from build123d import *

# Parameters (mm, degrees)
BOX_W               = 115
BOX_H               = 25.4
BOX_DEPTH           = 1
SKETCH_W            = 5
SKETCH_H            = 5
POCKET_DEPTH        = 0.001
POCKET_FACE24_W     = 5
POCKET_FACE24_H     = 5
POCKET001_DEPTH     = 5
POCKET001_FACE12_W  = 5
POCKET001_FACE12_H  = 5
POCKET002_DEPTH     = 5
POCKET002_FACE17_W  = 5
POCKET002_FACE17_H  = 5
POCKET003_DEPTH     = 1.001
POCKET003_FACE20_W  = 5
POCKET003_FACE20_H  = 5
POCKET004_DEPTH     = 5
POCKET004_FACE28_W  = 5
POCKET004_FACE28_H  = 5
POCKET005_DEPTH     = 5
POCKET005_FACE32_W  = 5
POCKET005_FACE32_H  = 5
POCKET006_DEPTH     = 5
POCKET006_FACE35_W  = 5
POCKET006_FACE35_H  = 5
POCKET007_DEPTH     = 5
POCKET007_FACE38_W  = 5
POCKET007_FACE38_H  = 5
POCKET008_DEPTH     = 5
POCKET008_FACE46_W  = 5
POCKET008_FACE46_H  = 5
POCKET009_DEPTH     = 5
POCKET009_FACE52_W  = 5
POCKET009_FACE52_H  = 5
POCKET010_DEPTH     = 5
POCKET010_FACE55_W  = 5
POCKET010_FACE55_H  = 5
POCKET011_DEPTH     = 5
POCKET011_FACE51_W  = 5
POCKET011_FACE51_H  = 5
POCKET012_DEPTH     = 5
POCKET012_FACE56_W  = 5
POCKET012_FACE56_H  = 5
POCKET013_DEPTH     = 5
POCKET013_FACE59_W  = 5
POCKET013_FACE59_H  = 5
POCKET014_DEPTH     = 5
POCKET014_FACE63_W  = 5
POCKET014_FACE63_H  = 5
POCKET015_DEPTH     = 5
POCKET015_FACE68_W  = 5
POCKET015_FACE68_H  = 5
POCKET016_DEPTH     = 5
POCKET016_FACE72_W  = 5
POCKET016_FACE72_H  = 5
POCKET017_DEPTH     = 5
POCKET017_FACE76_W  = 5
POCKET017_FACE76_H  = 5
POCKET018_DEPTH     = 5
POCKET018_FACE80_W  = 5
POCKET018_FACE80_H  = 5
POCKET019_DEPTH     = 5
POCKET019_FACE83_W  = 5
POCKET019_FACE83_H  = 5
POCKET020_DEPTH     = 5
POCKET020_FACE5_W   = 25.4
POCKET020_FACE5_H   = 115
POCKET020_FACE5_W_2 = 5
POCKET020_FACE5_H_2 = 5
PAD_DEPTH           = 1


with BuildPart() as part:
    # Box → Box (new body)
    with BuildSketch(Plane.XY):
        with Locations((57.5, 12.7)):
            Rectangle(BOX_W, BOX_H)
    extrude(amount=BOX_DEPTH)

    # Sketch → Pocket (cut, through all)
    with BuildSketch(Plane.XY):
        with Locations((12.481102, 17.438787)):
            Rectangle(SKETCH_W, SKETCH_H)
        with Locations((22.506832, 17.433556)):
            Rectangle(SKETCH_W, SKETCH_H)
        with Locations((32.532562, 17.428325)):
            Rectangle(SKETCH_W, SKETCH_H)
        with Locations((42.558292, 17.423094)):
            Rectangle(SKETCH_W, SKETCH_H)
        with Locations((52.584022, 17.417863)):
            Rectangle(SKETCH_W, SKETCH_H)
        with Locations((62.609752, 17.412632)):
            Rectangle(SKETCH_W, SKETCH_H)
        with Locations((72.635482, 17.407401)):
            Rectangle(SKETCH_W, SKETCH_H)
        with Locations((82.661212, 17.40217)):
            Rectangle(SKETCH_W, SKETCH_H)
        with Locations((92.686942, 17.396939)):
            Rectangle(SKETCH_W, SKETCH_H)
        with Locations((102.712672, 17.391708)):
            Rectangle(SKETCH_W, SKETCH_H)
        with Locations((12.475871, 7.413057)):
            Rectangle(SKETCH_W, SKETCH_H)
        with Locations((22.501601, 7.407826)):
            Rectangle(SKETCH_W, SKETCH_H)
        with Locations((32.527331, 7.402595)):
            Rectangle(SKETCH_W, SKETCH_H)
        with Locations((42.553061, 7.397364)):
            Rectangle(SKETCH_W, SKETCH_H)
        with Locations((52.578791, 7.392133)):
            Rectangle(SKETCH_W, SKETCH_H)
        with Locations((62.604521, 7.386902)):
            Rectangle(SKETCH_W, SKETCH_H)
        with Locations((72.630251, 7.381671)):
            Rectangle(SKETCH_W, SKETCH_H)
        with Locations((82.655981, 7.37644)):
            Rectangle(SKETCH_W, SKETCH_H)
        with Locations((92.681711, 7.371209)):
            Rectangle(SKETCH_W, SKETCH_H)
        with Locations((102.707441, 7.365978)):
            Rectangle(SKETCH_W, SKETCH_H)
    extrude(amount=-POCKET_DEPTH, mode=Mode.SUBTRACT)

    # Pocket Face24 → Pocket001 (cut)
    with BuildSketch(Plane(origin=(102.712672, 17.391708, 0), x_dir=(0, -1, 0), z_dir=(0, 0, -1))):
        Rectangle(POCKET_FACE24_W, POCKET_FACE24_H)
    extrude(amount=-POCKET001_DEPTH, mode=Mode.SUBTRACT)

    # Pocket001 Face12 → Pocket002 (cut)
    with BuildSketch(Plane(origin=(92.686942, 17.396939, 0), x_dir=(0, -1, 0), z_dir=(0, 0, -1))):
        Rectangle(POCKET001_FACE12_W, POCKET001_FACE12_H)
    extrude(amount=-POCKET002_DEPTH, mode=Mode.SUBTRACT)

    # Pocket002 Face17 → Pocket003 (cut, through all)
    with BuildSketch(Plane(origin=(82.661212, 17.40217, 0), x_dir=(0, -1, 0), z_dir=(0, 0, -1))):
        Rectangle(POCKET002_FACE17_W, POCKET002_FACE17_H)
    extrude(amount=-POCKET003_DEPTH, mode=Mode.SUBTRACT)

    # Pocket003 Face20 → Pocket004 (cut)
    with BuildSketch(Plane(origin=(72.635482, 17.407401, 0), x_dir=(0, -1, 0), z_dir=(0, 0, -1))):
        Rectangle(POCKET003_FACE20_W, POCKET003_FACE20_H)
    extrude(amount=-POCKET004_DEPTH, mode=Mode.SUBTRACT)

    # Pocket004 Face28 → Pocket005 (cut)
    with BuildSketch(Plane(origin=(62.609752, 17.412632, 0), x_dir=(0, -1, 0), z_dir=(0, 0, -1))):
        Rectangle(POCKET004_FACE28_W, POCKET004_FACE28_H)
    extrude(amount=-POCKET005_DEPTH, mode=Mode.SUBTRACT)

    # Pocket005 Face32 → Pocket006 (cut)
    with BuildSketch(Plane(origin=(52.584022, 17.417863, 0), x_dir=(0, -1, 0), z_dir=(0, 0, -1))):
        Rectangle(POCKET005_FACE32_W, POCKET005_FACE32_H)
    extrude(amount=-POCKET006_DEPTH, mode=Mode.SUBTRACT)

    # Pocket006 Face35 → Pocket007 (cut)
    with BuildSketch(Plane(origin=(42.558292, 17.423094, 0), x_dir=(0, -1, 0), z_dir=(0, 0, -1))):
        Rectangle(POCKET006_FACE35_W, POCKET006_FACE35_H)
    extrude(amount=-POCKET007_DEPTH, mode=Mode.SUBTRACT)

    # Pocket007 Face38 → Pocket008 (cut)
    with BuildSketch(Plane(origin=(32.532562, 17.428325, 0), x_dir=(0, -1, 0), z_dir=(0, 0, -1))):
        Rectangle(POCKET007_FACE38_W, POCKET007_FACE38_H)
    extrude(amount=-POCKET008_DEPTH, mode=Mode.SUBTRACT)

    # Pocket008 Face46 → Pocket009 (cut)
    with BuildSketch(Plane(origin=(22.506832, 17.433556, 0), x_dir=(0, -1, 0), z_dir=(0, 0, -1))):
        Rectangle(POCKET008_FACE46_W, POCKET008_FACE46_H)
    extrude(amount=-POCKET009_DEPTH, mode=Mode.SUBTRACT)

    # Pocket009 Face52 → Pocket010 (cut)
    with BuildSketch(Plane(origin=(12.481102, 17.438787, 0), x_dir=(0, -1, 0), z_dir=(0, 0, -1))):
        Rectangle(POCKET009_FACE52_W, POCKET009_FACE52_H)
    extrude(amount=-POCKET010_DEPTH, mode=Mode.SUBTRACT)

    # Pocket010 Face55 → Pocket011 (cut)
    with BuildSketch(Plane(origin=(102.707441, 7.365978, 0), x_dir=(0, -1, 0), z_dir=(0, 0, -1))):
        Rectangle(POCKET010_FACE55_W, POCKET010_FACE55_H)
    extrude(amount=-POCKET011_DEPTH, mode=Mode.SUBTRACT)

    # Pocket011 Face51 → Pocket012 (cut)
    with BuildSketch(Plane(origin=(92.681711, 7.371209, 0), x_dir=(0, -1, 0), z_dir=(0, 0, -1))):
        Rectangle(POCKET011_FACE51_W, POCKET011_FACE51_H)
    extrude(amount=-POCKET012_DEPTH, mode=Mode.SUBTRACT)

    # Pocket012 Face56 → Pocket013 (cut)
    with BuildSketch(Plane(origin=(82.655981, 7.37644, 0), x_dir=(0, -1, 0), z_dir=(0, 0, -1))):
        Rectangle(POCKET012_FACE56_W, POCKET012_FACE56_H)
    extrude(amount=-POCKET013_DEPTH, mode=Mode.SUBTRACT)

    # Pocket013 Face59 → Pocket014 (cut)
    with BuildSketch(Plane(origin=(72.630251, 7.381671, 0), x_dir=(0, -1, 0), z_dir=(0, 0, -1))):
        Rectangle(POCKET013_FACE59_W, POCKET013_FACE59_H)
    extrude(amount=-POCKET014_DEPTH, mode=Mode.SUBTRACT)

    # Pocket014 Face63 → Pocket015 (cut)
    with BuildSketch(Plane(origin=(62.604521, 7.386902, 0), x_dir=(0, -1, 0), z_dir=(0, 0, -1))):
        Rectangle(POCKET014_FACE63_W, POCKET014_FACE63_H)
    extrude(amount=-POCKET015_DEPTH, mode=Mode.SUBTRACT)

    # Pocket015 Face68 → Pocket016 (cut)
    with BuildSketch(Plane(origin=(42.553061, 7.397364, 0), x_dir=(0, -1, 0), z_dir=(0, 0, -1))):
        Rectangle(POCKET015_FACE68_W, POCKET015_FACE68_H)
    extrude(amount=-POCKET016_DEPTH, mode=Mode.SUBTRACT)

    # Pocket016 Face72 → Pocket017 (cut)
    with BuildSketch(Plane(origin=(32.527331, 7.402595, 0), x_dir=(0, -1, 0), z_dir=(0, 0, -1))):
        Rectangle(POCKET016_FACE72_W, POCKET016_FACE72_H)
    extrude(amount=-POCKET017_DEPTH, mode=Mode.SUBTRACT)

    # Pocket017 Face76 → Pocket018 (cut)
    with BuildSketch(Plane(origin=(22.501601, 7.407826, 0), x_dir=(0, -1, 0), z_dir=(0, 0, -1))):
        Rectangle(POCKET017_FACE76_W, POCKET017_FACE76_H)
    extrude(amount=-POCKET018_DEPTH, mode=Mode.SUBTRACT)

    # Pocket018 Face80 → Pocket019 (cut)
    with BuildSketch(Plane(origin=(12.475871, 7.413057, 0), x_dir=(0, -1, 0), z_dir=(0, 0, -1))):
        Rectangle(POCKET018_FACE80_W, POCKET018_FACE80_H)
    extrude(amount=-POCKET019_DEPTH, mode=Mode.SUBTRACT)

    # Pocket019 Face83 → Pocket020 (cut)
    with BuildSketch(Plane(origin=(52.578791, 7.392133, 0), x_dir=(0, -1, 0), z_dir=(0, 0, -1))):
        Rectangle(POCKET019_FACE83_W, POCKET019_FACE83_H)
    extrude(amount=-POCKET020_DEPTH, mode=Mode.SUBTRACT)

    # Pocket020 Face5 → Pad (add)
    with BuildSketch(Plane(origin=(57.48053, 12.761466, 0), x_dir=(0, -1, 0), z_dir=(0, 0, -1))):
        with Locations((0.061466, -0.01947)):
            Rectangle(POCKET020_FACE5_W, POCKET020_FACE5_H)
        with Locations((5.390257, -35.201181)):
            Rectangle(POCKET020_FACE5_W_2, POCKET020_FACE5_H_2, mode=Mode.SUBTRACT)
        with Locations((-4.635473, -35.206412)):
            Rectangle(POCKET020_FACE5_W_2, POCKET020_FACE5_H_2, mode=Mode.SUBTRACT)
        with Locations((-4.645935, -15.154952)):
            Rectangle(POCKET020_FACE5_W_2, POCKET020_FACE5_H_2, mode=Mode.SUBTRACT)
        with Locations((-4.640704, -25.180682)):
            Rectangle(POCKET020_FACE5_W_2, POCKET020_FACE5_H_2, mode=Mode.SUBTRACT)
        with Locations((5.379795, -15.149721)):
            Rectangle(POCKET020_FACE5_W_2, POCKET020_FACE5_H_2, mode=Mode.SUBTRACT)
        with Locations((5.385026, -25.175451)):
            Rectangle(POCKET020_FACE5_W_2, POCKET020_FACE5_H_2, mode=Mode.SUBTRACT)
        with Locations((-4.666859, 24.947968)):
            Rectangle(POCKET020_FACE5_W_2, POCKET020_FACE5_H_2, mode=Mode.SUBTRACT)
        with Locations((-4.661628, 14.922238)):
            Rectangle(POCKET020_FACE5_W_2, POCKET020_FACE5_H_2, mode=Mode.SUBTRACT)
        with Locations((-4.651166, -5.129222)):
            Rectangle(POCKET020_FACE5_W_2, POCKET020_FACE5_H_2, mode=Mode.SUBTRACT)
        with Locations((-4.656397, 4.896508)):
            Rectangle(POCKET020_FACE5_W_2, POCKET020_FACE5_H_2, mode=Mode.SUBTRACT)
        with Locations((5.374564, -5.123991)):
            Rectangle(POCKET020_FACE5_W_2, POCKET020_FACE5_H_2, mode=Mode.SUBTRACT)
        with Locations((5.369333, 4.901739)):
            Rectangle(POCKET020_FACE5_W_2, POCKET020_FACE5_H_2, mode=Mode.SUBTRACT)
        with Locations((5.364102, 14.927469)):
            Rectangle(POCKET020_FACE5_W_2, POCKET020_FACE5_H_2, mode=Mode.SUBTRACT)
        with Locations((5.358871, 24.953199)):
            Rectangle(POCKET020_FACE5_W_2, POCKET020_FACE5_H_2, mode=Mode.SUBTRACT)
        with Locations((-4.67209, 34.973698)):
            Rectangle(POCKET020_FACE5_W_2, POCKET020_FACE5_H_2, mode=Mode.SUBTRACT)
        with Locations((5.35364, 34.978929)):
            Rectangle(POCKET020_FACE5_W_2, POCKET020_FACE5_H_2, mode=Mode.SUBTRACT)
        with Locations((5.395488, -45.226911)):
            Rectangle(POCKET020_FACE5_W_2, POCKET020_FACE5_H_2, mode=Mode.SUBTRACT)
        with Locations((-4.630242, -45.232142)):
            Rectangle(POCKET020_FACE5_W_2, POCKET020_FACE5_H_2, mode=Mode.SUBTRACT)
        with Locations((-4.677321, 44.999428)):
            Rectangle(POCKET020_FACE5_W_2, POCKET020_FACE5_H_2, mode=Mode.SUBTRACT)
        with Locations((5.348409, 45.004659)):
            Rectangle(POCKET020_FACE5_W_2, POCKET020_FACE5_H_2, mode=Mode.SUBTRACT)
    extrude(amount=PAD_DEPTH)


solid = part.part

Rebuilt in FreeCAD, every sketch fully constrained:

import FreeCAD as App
import Part
import Sketcher


def add_polygon(sketch, points):
    """Adds a closed chain of lines whose ends are joined by coincident constraints."""
    first, n = sketch.GeometryCount, len(points)
    for a, b in zip(points, points[1:] + points[:1]):
        sketch.addGeometry(Part.LineSegment(App.Vector(*a, 0), App.Vector(*b, 0)), False)
    for i in range(n):
        sketch.addConstraint(Sketcher.Constraint("Coincident", first + i, 2, first + (i + 1) % n, 1))

doc = App.newDocument("Part")
params = doc.addObject("Spreadsheet::Sheet", "Params")
for row, (alias, value) in enumerate([
    ("sketch1_width", "115 mm"),
    ("sketch1_height", "25.4 mm"),
    ("pad1_length", "1 mm"),
    ("sketch2_width", "5 mm"),
    ("sketch3_width", "5 mm"),
    ("pocket2_length", "5 mm"),
    ("sketch4_width", "5 mm"),
    ("pocket3_length", "5 mm"),
    ("sketch5_width", "5 mm"),
    ("sketch6_width", "5 mm"),
    ("pocket5_length", "5 mm"),
    ("sketch7_width", "5 mm"),
    ("pocket6_length", "5 mm"),
    ("sketch8_width", "5 mm"),
    ("pocket7_length", "5 mm"),
    ("sketch9_width", "5 mm"),
    ("pocket8_length", "5 mm"),
    ("sketch10_width", "5 mm"),
    ("pocket9_length", "5 mm"),
    ("sketch11_width", "5 mm"),
    ("pocket10_length", "5 mm"),
    ("sketch12_width", "5 mm"),
    ("pocket11_length", "5 mm"),
    ("sketch13_width", "5 mm"),
    ("pocket12_length", "5 mm"),
    ("sketch14_width", "5 mm"),
    ("pocket13_length", "5 mm"),
    ("sketch15_width", "5 mm"),
    ("pocket14_length", "5 mm"),
    ("sketch16_width", "5 mm"),
    ("pocket15_length", "5 mm"),
    ("sketch17_width", "5 mm"),
    ("pocket16_length", "5 mm"),
    ("sketch18_width", "5 mm"),
    ("pocket17_length", "5 mm"),
    ("sketch19_width", "5 mm"),
    ("pocket18_length", "5 mm"),
    ("sketch20_width", "5 mm"),
    ("pocket19_length", "5 mm"),
    ("sketch21_width", "5 mm"),
    ("pocket20_length", "5 mm"),
    ("sketch22_width", "5 mm"),
    ("pocket21_length", "5 mm"),
    ("sketch23_width", "115 mm"),
    ("sketch23_width2", "5 mm"),
    ("sketch23_height", "25.4 mm"),
    ("pad2_length", "1 mm"),
], start=1):
    params.set(f"A{row}", alias)
    params.set(f"B{row}", "=" + value)
    params.setAlias(f"B{row}", alias)

body = doc.addObject("PartDesign::Body", "Body")

sketch1 = body.newObject("Sketcher::SketchObject", "Sketch")
sketch1.AttachmentSupport = (doc.getObject("XY_Plane"), [""])
sketch1.MapMode = "FlatFace"
add_polygon(sketch1, [(0, 25), (0, 0), (115, 0), (115, 25)])
sketch1.addConstraint([
    Sketcher.Constraint("Vertical", 0),
    Sketcher.Constraint("Horizontal", 1),
    Sketcher.Constraint("Vertical", 2),
    Sketcher.Constraint("Horizontal", 3),
    Sketcher.Constraint("Coincident", 0, 2, -1, 1),
    Sketcher.Constraint("DistanceX", 1, 1, 1, 2, 115.0),
    Sketcher.Constraint("DistanceY", 0, 2, 0, 1, 25.4),
])
sketch1.setExpression("Constraints[9]", "Params.sketch1_width")
sketch1.setExpression("Constraints[10]", "Params.sketch1_height")
pad1 = body.newObject("PartDesign::Pad", "Pad")
pad1.Profile = sketch1
pad1.setExpression("Length", "Params.pad1_length")

sketch2 = body.newObject("Sketcher::SketchObject", "Sketch001")
sketch2.AttachmentSupport = (doc.getObject("XY_Plane"), [""])
sketch2.MapMode = "FlatFace"
add_polygon(sketch2, [(10, 19.9), (10, 14.9), (15, 14.9), (15, 19.9)])
add_polygon(sketch2, [(20, 19.9), (20, 14.9), (25, 14.9), (25, 19.9)])
add_polygon(sketch2, [(30, 19.9), (30, 14.9), (35, 14.9), (35, 19.9)])
add_polygon(sketch2, [(40.1, 19.9), (40.1, 14.9), (45.1, 14.9), (45.1, 19.9)])
add_polygon(sketch2, [(50.1, 19.9), (50.1, 14.9), (55.1, 14.9), (55.1, 19.9)])
add_polygon(sketch2, [(60.1, 19.9), (60.1, 14.9), (65.1, 14.9), (65.1, 19.9)])
add_polygon(sketch2, [(70.1, 19.9), (70.1, 14.9), (75.1, 14.9), (75.1, 19.9)])
add_polygon(sketch2, [(80.2, 19.9), (80.2, 14.9), (85.2, 14.9), (85.2, 19.9)])
add_polygon(sketch2, [(90.2, 19.9), (90.2, 14.9), (95.2, 14.9), (95.2, 19.9)])
add_polygon(sketch2, [(100.2, 19.9), (100.2, 14.9), (105.2, 14.9), (105.2, 19.9)])
add_polygon(sketch2, [(10, 9.9), (10, 4.9), (15, 4.9), (15, 9.9)])
add_polygon(sketch2, [(20, 9.9), (20, 4.9), (25, 4.9), (25, 9.9)])
add_polygon(sketch2, [(30, 9.9), (30, 4.9), (35, 4.9), (35, 9.9)])
add_polygon(sketch2, [(40.1, 9.9), (40.1, 4.9), (45.1, 4.9), (45.1, 9.9)])
add_polygon(sketch2, [(50.1, 9.9), (50.1, 4.9), (55.1, 4.9), (55.1, 9.9)])
add_polygon(sketch2, [(60.1, 9.9), (60.1, 4.9), (65.1, 4.9), (65.1, 9.9)])
add_polygon(sketch2, [(70.1, 9.9), (70.1, 4.9), (75.1, 4.9), (75.1, 9.9)])
add_polygon(sketch2, [(80.2, 9.9), (80.2, 4.9), (85.2, 4.9), (85.2, 9.9)])
add_polygon(sketch2, [(90.2, 9.9), (90.2, 4.9), (95.2, 4.9), (95.2, 9.9)])
add_polygon(sketch2, [(100.2, 9.9), (100.2, 4.9), (105.2, 4.9), (105.2, 9.9)])
sketch2.addConstraint([
    Sketcher.Constraint("Vertical", 0),
    Sketcher.Constraint("Horizontal", 1),
    Sketcher.Constraint("Vertical", 2),
    Sketcher.Constraint("Horizontal", 3),
    Sketcher.Constraint("Vertical", 4),
    Sketcher.Constraint("Horizontal", 5),
    Sketcher.Constraint("Vertical", 6),
    Sketcher.Constraint("Horizontal", 7),
    Sketcher.Constraint("Vertical", 8),
    Sketcher.Constraint("Horizontal", 9),
    Sketcher.Constraint("Vertical", 10),
    Sketcher.Constraint("Horizontal", 11),
    Sketcher.Constraint("Vertical", 12),
    Sketcher.Constraint("Horizontal", 13),
    Sketcher.Constraint("Vertical", 14),
    Sketcher.Constraint("Horizontal", 15),
    Sketcher.Constraint("Vertical", 16),
    Sketcher.Constraint("Horizontal", 17),
    Sketcher.Constraint("Vertical", 18),
    Sketcher.Constraint("Horizontal", 19),
    Sketcher.Constraint("Vertical", 20),
    Sketcher.Constraint("Horizontal", 21),
    Sketcher.Constraint("Vertical", 22),
    Sketcher.Constraint("Horizontal", 23),
    Sketcher.Constraint("Vertical", 24),
    Sketcher.Constraint("Horizontal", 25),
    Sketcher.Constraint("Vertical", 26),
    Sketcher.Constraint("Horizontal", 27),
    Sketcher.Constraint("Vertical", 28),
    Sketcher.Constraint("Horizontal", 29),
    Sketcher.Constraint("Vertical", 30),
    Sketcher.Constraint("Horizontal", 31),
    Sketcher.Constraint("Vertical", 32),
    Sketcher.Constraint("Horizontal", 33),
    Sketcher.Constraint("Vertical", 34),
    Sketcher.Constraint("Horizontal", 35),
    Sketcher.Constraint("Vertical", 36),
    Sketcher.Constraint("Horizontal", 37),
    Sketcher.Constraint("Vertical", 38),
    Sketcher.Constraint("Horizontal", 39),
    Sketcher.Constraint("Vertical", 40),
    Sketcher.Constraint("Horizontal", 41),
    Sketcher.Constraint("Vertical", 42),
    Sketcher.Constraint("Horizontal", 43),
    Sketcher.Constraint("Vertical", 44),
    Sketcher.Constraint("Horizontal", 45),
    Sketcher.Constraint("Vertical", 46),
    Sketcher.Constraint("Horizontal", 47),
    Sketcher.Constraint("Vertical", 48),
    Sketcher.Constraint("Horizontal", 49),
    Sketcher.Constraint("Vertical", 50),
    Sketcher.Constraint("Horizontal", 51),
    Sketcher.Constraint("Vertical", 52),
    Sketcher.Constraint("Horizontal", 53),
    Sketcher.Constraint("Vertical", 54),
    Sketcher.Constraint("Horizontal", 55),
    Sketcher.Constraint("Vertical", 56),
    Sketcher.Constraint("Horizontal", 57),
    Sketcher.Constraint("Vertical", 58),
    Sketcher.Constraint("Horizontal", 59),
    Sketcher.Constraint("Vertical", 60),
    Sketcher.Constraint("Horizontal", 61),
    Sketcher.Constraint("Vertical", 62),
    Sketcher.Constraint("Horizontal", 63),
    Sketcher.Constraint("Vertical", 64),
    Sketcher.Constraint("Horizontal", 65),
    Sketcher.Constraint("Vertical", 66),
    Sketcher.Constraint("Horizontal", 67),
    Sketcher.Constraint("Vertical", 68),
    Sketcher.Constraint("Horizontal", 69),
    Sketcher.Constraint("Vertical", 70),
    Sketcher.Constraint("Horizontal", 71),
    Sketcher.Constraint("Vertical", 72),
    Sketcher.Constraint("Horizontal", 73),
    Sketcher.Constraint("Vertical", 74),
    Sketcher.Constraint("Horizontal", 75),
    Sketcher.Constraint("Vertical", 76),
    Sketcher.Constraint("Horizontal", 77),
    Sketcher.Constraint("Vertical", 78),
    Sketcher.Constraint("Horizontal", 79),
    Sketcher.Constraint("Equal", 3, 5),
    Sketcher.Constraint("Equal", 7, 9),
    Sketcher.Constraint("Equal", 11, 13),
    Sketcher.Constraint("Equal", 15, 17),
    Sketcher.Constraint("Equal", 19, 21),
    Sketcher.Constraint("Equal", 23, 25),
    Sketcher.Constraint("Equal", 27, 29),
    Sketcher.Constraint("Equal", 31, 33),
    Sketcher.Constraint("Equal", 35, 37),
    Sketcher.Constraint("Equal", 39, 41),
    Sketcher.Constraint("Equal", 43, 45),
    Sketcher.Constraint("Equal", 47, 49),
    Sketcher.Constraint("Equal", 51, 53),
    Sketcher.Constraint("Equal", 55, 57),
    Sketcher.Constraint("Equal", 59, 61),
    Sketcher.Constraint("Equal", 63, 65),
    Sketcher.Constraint("Equal", 67, 69),
    Sketcher.Constraint("Equal", 71, 73),
    Sketcher.Constraint("Equal", 75, 77),
    Sketcher.Constraint("Equal", 79, 0),
    Sketcher.Constraint("Equal", 2, 4),
    Sketcher.Constraint("Equal", 6, 8),
    Sketcher.Constraint("Equal", 10, 12),
    Sketcher.Constraint("Equal", 14, 16),
    Sketcher.Constraint("Equal", 18, 20),
    Sketcher.Constraint("Equal", 22, 24),
    Sketcher.Constraint("Equal", 26, 28),
    Sketcher.Constraint("Equal", 30, 32),
    Sketcher.Constraint("Equal", 34, 36),
    Sketcher.Constraint("Equal", 38, 40),
    Sketcher.Constraint("Equal", 42, 44),
    Sketcher.Constraint("Equal", 46, 48),
    Sketcher.Constraint("Equal", 50, 52),
    Sketcher.Constraint("Equal", 54, 56),
    Sketcher.Constraint("Equal", 58, 60),
    Sketcher.Constraint("Equal", 62, 64),
    Sketcher.Constraint("Equal", 66, 68),
    Sketcher.Constraint("Equal", 70, 72),
    Sketcher.Constraint("Equal", 74, 76),
    Sketcher.Constraint("DistanceX", 1, 1, 1, 2, 5.0),
    Sketcher.Constraint("DistanceY", -1, 1, 24, 2, 14.907401),
    Sketcher.Constraint("DistanceX", -1, 1, 44, 2, 20.001601),
    Sketcher.Constraint("DistanceY", -1, 1, 62, 2, 9.886902),
    Sketcher.Constraint("DistanceX", -1, 1, 4, 2, 20.006832),
    Sketcher.Constraint("DistanceX", -1, 1, 8, 2, 30.032562),
    Sketcher.Constraint("DistanceX", -1, 1, 16, 2, 50.084022),
    Sketcher.Constraint("DistanceX", -1, 1, 21, 2, 65.109752),
    Sketcher.Constraint("DistanceY", -1, 1, 22, 2, 19.912632),
    Sketcher.Constraint("DistanceX", -1, 1, 24, 2, 70.135482),
    Sketcher.Constraint("DistanceY", -1, 1, 28, 2, 14.90217),
    Sketcher.Constraint("DistanceX", -1, 1, 32, 2, 90.186942),
    Sketcher.Constraint("DistanceY", -1, 1, 32, 2, 14.896939),
    Sketcher.Constraint("DistanceX", -1, 1, 36, 2, 100.212672),
    Sketcher.Constraint("DistanceY", -1, 1, 38, 2, 19.891708),
    Sketcher.Constraint("DistanceX", -1, 1, 40, 2, 9.975871),
    Sketcher.Constraint("DistanceX", -1, 1, 48, 2, 30.027331),
    Sketcher.Constraint("DistanceX", -1, 1, 52, 2, 40.053061),
    Sketcher.Constraint("DistanceX", -1, 1, 56, 2, 50.078791),
    Sketcher.Constraint("DistanceX", -1, 1, 60, 2, 60.104521),
    Sketcher.Constraint("DistanceX", -1, 1, 64, 2, 70.130251),
    Sketcher.Constraint("DistanceY", -1, 1, 64, 2, 4.881671),
    Sketcher.Constraint("DistanceX", -1, 1, 68, 2, 80.155981),
    Sketcher.Constraint("DistanceY", -1, 1, 68, 2, 4.87644),
    Sketcher.Constraint("DistanceX", -1, 1, 72, 2, 90.181711),
    Sketcher.Constraint("DistanceY", -1, 1, 72, 2, 4.871209),
    Sketcher.Constraint("DistanceX", -1, 1, 76, 2, 100.207441),
    Sketcher.Constraint("DistanceX", -1, 1, 0, 2, 9.981102),
    Sketcher.Constraint("DistanceY", -1, 1, 0, 2, 14.938787),
    Sketcher.Constraint("DistanceY", -1, 1, 4, 2, 14.933556),
    Sketcher.Constraint("DistanceY", -1, 1, 8, 2, 14.928325),
    Sketcher.Constraint("DistanceX", -1, 1, 12, 2, 40.058292),
    Sketcher.Constraint("DistanceY", -1, 1, 12, 2, 14.923094),
    Sketcher.Constraint("DistanceY", -1, 1, 16, 2, 14.917863),
    Sketcher.Constraint("DistanceX", -1, 1, 28, 2, 80.161212),
    Sketcher.Constraint("DistanceY", -1, 1, 40, 2, 4.913057),
    Sketcher.Constraint("DistanceY", -1, 1, 44, 2, 4.907826),
    Sketcher.Constraint("DistanceY", -1, 1, 48, 2, 4.902595),
    Sketcher.Constraint("DistanceY", -1, 1, 52, 2, 4.897364),
    Sketcher.Constraint("DistanceY", -1, 1, 56, 2, 4.892133),
    Sketcher.Constraint("DistanceY", -1, 1, 76, 2, 4.865978),
])
sketch2.setExpression("Constraints[199]", "Params.sketch2_width")
pocket1 = body.newObject("PartDesign::Pocket", "Pocket")
pocket1.Profile = sketch2
pocket1.Type = "ThroughAll"

sketch3 = body.newObject("Sketcher::SketchObject", "Sketch002")
sketch3.AttachmentSupport = (doc.getObject("XY_Plane"), [""])
sketch3.MapMode = "FlatFace"
add_polygon(sketch3, [(100, 20), (105, 20), (105, 15), (100, 15)])
sketch3.addConstraint([
    Sketcher.Constraint("Horizontal", 0),
    Sketcher.Constraint("Vertical", 1),
    Sketcher.Constraint("Horizontal", 2),
    Sketcher.Constraint("Vertical", 3),
    Sketcher.Constraint("Equal", 2, 1),
    Sketcher.Constraint("DistanceX", 0, 1, 0, 2, 5.0),
    Sketcher.Constraint("DistanceX", -1, 1, 0, 2, 105.212672),
    Sketcher.Constraint("DistanceY", -1, 1, 0, 2, 19.891708),
])
sketch3.setExpression("Constraints[9]", "Params.sketch3_width")
pocket2 = body.newObject("PartDesign::Pocket", "Pocket001")
pocket2.Profile = sketch3
pocket2.setExpression("Length", "Params.pocket2_length")
pocket2.Reversed = True

sketch4 = body.newObject("Sketcher::SketchObject", "Sketch003")
sketch4.AttachmentSupport = (doc.getObject("XY_Plane"), [""])
sketch4.MapMode = "FlatFace"
add_polygon(sketch4, [(90, 20), (95, 20), (95, 15), (90, 15)])
sketch4.addConstraint([
    Sketcher.Constraint("Horizontal", 0),
    Sketcher.Constraint("Vertical", 1),
    Sketcher.Constraint("Horizontal", 2),
    Sketcher.Constraint("Vertical", 3),
    Sketcher.Constraint("Equal", 2, 1),
    Sketcher.Constraint("DistanceX", 0, 1, 0, 2, 5.0),
    Sketcher.Constraint("DistanceX", -1, 1, 0, 2, 95.186942),
    Sketcher.Constraint("DistanceY", -1, 1, 0, 2, 19.896939),
])
sketch4.setExpression("Constraints[9]", "Params.sketch4_width")
pocket3 = body.newObject("PartDesign::Pocket", "Pocket002")
pocket3.Profile = sketch4
pocket3.setExpression("Length", "Params.pocket3_length")
pocket3.Reversed = True

sketch5 = body.newObject("Sketcher::SketchObject", "Sketch004")
sketch5.AttachmentSupport = (doc.getObject("XY_Plane"), [""])
sketch5.MapMode = "FlatFace"
add_polygon(sketch5, [(80, 20), (85, 20), (85, 15), (80, 15)])
sketch5.addConstraint([
    Sketcher.Constraint("Horizontal", 0),
    Sketcher.Constraint("Vertical", 1),
    Sketcher.Constraint("Horizontal", 2),
    Sketcher.Constraint("Vertical", 3),
    Sketcher.Constraint("Equal", 2, 1),
    Sketcher.Constraint("DistanceX", 0, 1, 0, 2, 5.0),
    Sketcher.Constraint("DistanceY", -1, 1, 0, 2, 19.90217),
    Sketcher.Constraint("DistanceX", -1, 1, 0, 2, 85.161212),
])
sketch5.setExpression("Constraints[9]", "Params.sketch5_width")
pocket4 = body.newObject("PartDesign::Pocket", "Pocket003")
pocket4.Profile = sketch5
pocket4.Type = "ThroughAll"
pocket4.Reversed = True

sketch6 = body.newObject("Sketcher::SketchObject", "Sketch005")
sketch6.AttachmentSupport = (doc.getObject("XY_Plane"), [""])
sketch6.MapMode = "FlatFace"
add_polygon(sketch6, [(70, 20), (75, 20), (75, 15), (70, 15)])
sketch6.addConstraint([
    Sketcher.Constraint("Horizontal", 0),
    Sketcher.Constraint("Vertical", 1),
    Sketcher.Constraint("Horizontal", 2),
    Sketcher.Constraint("Vertical", 3),
    Sketcher.Constraint("Equal", 2, 1),
    Sketcher.Constraint("DistanceX", 0, 1, 0, 2, 5.0),
    Sketcher.Constraint("DistanceY", -1, 1, 0, 2, 19.907401),
    Sketcher.Constraint("DistanceX", -1, 1, 0, 2, 75.135482),
])
sketch6.setExpression("Constraints[9]", "Params.sketch6_width")
pocket5 = body.newObject("PartDesign::Pocket", "Pocket004")
pocket5.Profile = sketch6
pocket5.setExpression("Length", "Params.pocket5_length")
pocket5.Reversed = True

sketch7 = body.newObject("Sketcher::SketchObject", "Sketch006")
sketch7.AttachmentSupport = (doc.getObject("XY_Plane"), [""])
sketch7.MapMode = "FlatFace"
add_polygon(sketch7, [(60.1, 19.9), (65.1, 19.9), (65.1, 14.9), (60.1, 14.9)])
sketch7.addConstraint([
    Sketcher.Constraint("Horizontal", 0),
    Sketcher.Constraint("Vertical", 1),
    Sketcher.Constraint("Horizontal", 2),
    Sketcher.Constraint("Vertical", 3),
    Sketcher.Constraint("Equal", 2, 1),
    Sketcher.Constraint("DistanceX", 0, 1, 0, 2, 5.0),
    Sketcher.Constraint("DistanceX", -1, 1, 0, 2, 65.109752),
    Sketcher.Constraint("DistanceY", -1, 1, 0, 2, 19.912632),
])
sketch7.setExpression("Constraints[9]", "Params.sketch7_width")
pocket6 = body.newObject("PartDesign::Pocket", "Pocket005")
pocket6.Profile = sketch7
pocket6.setExpression("Length", "Params.pocket6_length")
pocket6.Reversed = True

sketch8 = body.newObject("Sketcher::SketchObject", "Sketch007")
sketch8.AttachmentSupport = (doc.getObject("XY_Plane"), [""])
sketch8.MapMode = "FlatFace"
add_polygon(sketch8, [(50, 20), (55, 20), (55, 15), (50, 15)])
sketch8.addConstraint([
    Sketcher.Constraint("Horizontal", 0),
    Sketcher.Constraint("Vertical", 1),
    Sketcher.Constraint("Horizontal", 2),
    Sketcher.Constraint("Vertical", 3),
    Sketcher.Constraint("Equal", 2, 1),
    Sketcher.Constraint("DistanceX", 0, 1, 0, 2, 5.0),
    Sketcher.Constraint("DistanceX", -1, 1, 0, 2, 55.084022),
    Sketcher.Constraint("DistanceY", -1, 1, 0, 2, 19.917863),
])
sketch8.setExpression("Constraints[9]", "Params.sketch8_width")
pocket7 = body.newObject("PartDesign::Pocket", "Pocket006")
pocket7.Profile = sketch8
pocket7.setExpression("Length", "Params.pocket7_length")
pocket7.Reversed = True

sketch9 = body.newObject("Sketcher::SketchObject", "Sketch008")
sketch9.AttachmentSupport = (doc.getObject("XY_Plane"), [""])
sketch9.MapMode = "FlatFace"
add_polygon(sketch9, [(40.1, 19.9), (45.1, 19.9), (45.1, 14.9), (40.1, 14.9)])
sketch9.addConstraint([
    Sketcher.Constraint("Horizontal", 0),
    Sketcher.Constraint("Vertical", 1),
    Sketcher.Constraint("Horizontal", 2),
    Sketcher.Constraint("Vertical", 3),
    Sketcher.Constraint("Equal", 2, 1),
    Sketcher.Constraint("DistanceX", 0, 1, 0, 2, 5.0),
    Sketcher.Constraint("DistanceX", -1, 1, 0, 2, 45.058292),
    Sketcher.Constraint("DistanceY", -1, 1, 0, 2, 19.923094),
])
sketch9.setExpression("Constraints[9]", "Params.sketch9_width")
pocket8 = body.newObject("PartDesign::Pocket", "Pocket007")
pocket8.Profile = sketch9
pocket8.setExpression("Length", "Params.pocket8_length")
pocket8.Reversed = True

sketch10 = body.newObject("Sketcher::SketchObject", "Sketch009")
sketch10.AttachmentSupport = (doc.getObject("XY_Plane"), [""])
sketch10.MapMode = "FlatFace"
add_polygon(sketch10, [(30, 20), (35, 20), (35, 15), (30, 15)])
sketch10.addConstraint([
    Sketcher.Constraint("Horizontal", 0),
    Sketcher.Constraint("Vertical", 1),
    Sketcher.Constraint("Horizontal", 2),
    Sketcher.Constraint("Vertical", 3),
    Sketcher.Constraint("Equal", 2, 1),
    Sketcher.Constraint("DistanceX", 0, 1, 0, 2, 5.0),
    Sketcher.Constraint("DistanceX", -1, 1, 2, 2, 30.032562),
    Sketcher.Constraint("DistanceY", -1, 1, 0, 2, 19.928325),
])
sketch10.setExpression("Constraints[9]", "Params.sketch10_width")
pocket9 = body.newObject("PartDesign::Pocket", "Pocket008")
pocket9.Profile = sketch10
pocket9.setExpression("Length", "Params.pocket9_length")
pocket9.Reversed = True

sketch11 = body.newObject("Sketcher::SketchObject", "Sketch010")
sketch11.AttachmentSupport = (doc.getObject("XY_Plane"), [""])
sketch11.MapMode = "FlatFace"
add_polygon(sketch11, [(20, 20), (25, 20), (25, 15), (20, 15)])
sketch11.addConstraint([
    Sketcher.Constraint("Horizontal", 0),
    Sketcher.Constraint("Vertical", 1),
    Sketcher.Constraint("Horizontal", 2),
    Sketcher.Constraint("Vertical", 3),
    Sketcher.Constraint("Equal", 2, 1),
    Sketcher.Constraint("DistanceX", 0, 1, 0, 2, 5.0),
    Sketcher.Constraint("DistanceX", -1, 1, 0, 2, 25.006832),
    Sketcher.Constraint("DistanceY", -1, 1, 0, 2, 19.933556),
])
sketch11.setExpression("Constraints[9]", "Params.sketch11_width")
pocket10 = body.newObject("PartDesign::Pocket", "Pocket009")
pocket10.Profile = sketch11
pocket10.setExpression("Length", "Params.pocket10_length")
pocket10.Reversed = True

sketch12 = body.newObject("Sketcher::SketchObject", "Sketch011")
sketch12.AttachmentSupport = (doc.getObject("XY_Plane"), [""])
sketch12.MapMode = "FlatFace"
add_polygon(sketch12, [(10, 20), (15, 20), (15, 15), (10, 15)])
sketch12.addConstraint([
    Sketcher.Constraint("Horizontal", 0),
    Sketcher.Constraint("Vertical", 1),
    Sketcher.Constraint("Horizontal", 2),
    Sketcher.Constraint("Vertical", 3),
    Sketcher.Constraint("Equal", 2, 1),
    Sketcher.Constraint("DistanceX", 0, 1, 0, 2, 5.0),
    Sketcher.Constraint("DistanceX", -1, 1, 0, 2, 14.981102),
    Sketcher.Constraint("DistanceY", -1, 1, 0, 2, 19.938787),
])
sketch12.setExpression("Constraints[9]", "Params.sketch12_width")
pocket11 = body.newObject("PartDesign::Pocket", "Pocket010")
pocket11.Profile = sketch12
pocket11.setExpression("Length", "Params.pocket11_length")
pocket11.Reversed = True

sketch13 = body.newObject("Sketcher::SketchObject", "Sketch012")
sketch13.AttachmentSupport = (doc.getObject("XY_Plane"), [""])
sketch13.MapMode = "FlatFace"
add_polygon(sketch13, [(100, 10), (105, 10), (105, 5), (100, 5)])
sketch13.addConstraint([
    Sketcher.Constraint("Horizontal", 0),
    Sketcher.Constraint("Vertical", 1),
    Sketcher.Constraint("Horizontal", 2),
    Sketcher.Constraint("Vertical", 3),
    Sketcher.Constraint("Equal", 2, 1),
    Sketcher.Constraint("DistanceX", 0, 1, 0, 2, 5.0),
    Sketcher.Constraint("DistanceX", -1, 1, 0, 2, 105.207441),
    Sketcher.Constraint("DistanceY", -1, 1, 0, 2, 9.865978),
])
sketch13.setExpression("Constraints[9]", "Params.sketch13_width")
pocket12 = body.newObject("PartDesign::Pocket", "Pocket011")
pocket12.Profile = sketch13
pocket12.setExpression("Length", "Params.pocket12_length")
pocket12.Reversed = True

sketch14 = body.newObject("Sketcher::SketchObject", "Sketch013")
sketch14.AttachmentSupport = (doc.getObject("XY_Plane"), [""])
sketch14.MapMode = "FlatFace"
add_polygon(sketch14, [(90, 10), (95, 10), (95, 5), (90, 5)])
sketch14.addConstraint([
    Sketcher.Constraint("Horizontal", 0),
    Sketcher.Constraint("Vertical", 1),
    Sketcher.Constraint("Horizontal", 2),
    Sketcher.Constraint("Vertical", 3),
    Sketcher.Constraint("Equal", 2, 1),
    Sketcher.Constraint("DistanceX", 0, 1, 0, 2, 5.0),
    Sketcher.Constraint("DistanceX", -1, 1, 0, 2, 95.181711),
    Sketcher.Constraint("DistanceY", -1, 1, 0, 2, 9.871209),
])
sketch14.setExpression("Constraints[9]", "Params.sketch14_width")
pocket13 = body.newObject("PartDesign::Pocket", "Pocket012")
pocket13.Profile = sketch14
pocket13.setExpression("Length", "Params.pocket13_length")
pocket13.Reversed = True

sketch15 = body.newObject("Sketcher::SketchObject", "Sketch014")
sketch15.AttachmentSupport = (doc.getObject("XY_Plane"), [""])
sketch15.MapMode = "FlatFace"
add_polygon(sketch15, [(80, 10), (85, 10), (85, 5), (80, 5)])
sketch15.addConstraint([
    Sketcher.Constraint("Horizontal", 0),
    Sketcher.Constraint("Vertical", 1),
    Sketcher.Constraint("Horizontal", 2),
    Sketcher.Constraint("Vertical", 3),
    Sketcher.Constraint("Equal", 2, 1),
    Sketcher.Constraint("DistanceX", 0, 1, 0, 2, 5.0),
    Sketcher.Constraint("DistanceX", -1, 1, 0, 2, 85.155981),
    Sketcher.Constraint("DistanceY", -1, 1, 0, 2, 9.87644),
])
sketch15.setExpression("Constraints[9]", "Params.sketch15_width")
pocket14 = body.newObject("PartDesign::Pocket", "Pocket013")
pocket14.Profile = sketch15
pocket14.setExpression("Length", "Params.pocket14_length")
pocket14.Reversed = True

sketch16 = body.newObject("Sketcher::SketchObject", "Sketch015")
sketch16.AttachmentSupport = (doc.getObject("XY_Plane"), [""])
sketch16.MapMode = "FlatFace"
add_polygon(sketch16, [(70, 10), (75, 10), (75, 5), (70, 5)])
sketch16.addConstraint([
    Sketcher.Constraint("Horizontal", 0),
    Sketcher.Constraint("Vertical", 1),
    Sketcher.Constraint("Horizontal", 2),
    Sketcher.Constraint("Vertical", 3),
    Sketcher.Constraint("Equal", 2, 1),
    Sketcher.Constraint("DistanceX", 0, 1, 0, 2, 5.0),
    Sketcher.Constraint("DistanceX", -1, 1, 0, 2, 75.130251),
    Sketcher.Constraint("DistanceY", -1, 1, 0, 2, 9.881671),
])
sketch16.setExpression("Constraints[9]", "Params.sketch16_width")
pocket15 = body.newObject("PartDesign::Pocket", "Pocket014")
pocket15.Profile = sketch16
pocket15.setExpression("Length", "Params.pocket15_length")
pocket15.Reversed = True

sketch17 = body.newObject("Sketcher::SketchObject", "Sketch016")
sketch17.AttachmentSupport = (doc.getObject("XY_Plane"), [""])
sketch17.MapMode = "FlatFace"
add_polygon(sketch17, [(60.1, 9.9), (65.1, 9.9), (65.1, 4.9), (60.1, 4.9)])
sketch17.addConstraint([
    Sketcher.Constraint("Horizontal", 0),
    Sketcher.Constraint("Vertical", 1),
    Sketcher.Constraint("Horizontal", 2),
    Sketcher.Constraint("Vertical", 3),
    Sketcher.Constraint("Equal", 2, 1),
    Sketcher.Constraint("DistanceX", 0, 1, 0, 2, 5.0),
    Sketcher.Constraint("DistanceY", -1, 1, 0, 2, 9.886902),
    Sketcher.Constraint("DistanceX", -1, 1, 0, 2, 65.104521),
])
sketch17.setExpression("Constraints[9]", "Params.sketch17_width")
pocket16 = body.newObject("PartDesign::Pocket", "Pocket015")
pocket16.Profile = sketch17
pocket16.setExpression("Length", "Params.pocket16_length")
pocket16.Reversed = True

sketch18 = body.newObject("Sketcher::SketchObject", "Sketch017")
sketch18.AttachmentSupport = (doc.getObject("XY_Plane"), [""])
sketch18.MapMode = "FlatFace"
add_polygon(sketch18, [(40, 10), (45, 10), (45, 5), (40, 5)])
sketch18.addConstraint([
    Sketcher.Constraint("Horizontal", 0),
    Sketcher.Constraint("Vertical", 1),
    Sketcher.Constraint("Horizontal", 2),
    Sketcher.Constraint("Vertical", 3),
    Sketcher.Constraint("Equal", 2, 1),
    Sketcher.Constraint("DistanceX", 0, 1, 0, 2, 5.0),
    Sketcher.Constraint("DistanceX", -1, 1, 0, 2, 45.053061),
    Sketcher.Constraint("DistanceY", -1, 1, 0, 2, 9.897364),
])
sketch18.setExpression("Constraints[9]", "Params.sketch18_width")
pocket17 = body.newObject("PartDesign::Pocket", "Pocket016")
pocket17.Profile = sketch18
pocket17.setExpression("Length", "Params.pocket17_length")
pocket17.Reversed = True

sketch19 = body.newObject("Sketcher::SketchObject", "Sketch018")
sketch19.AttachmentSupport = (doc.getObject("XY_Plane"), [""])
sketch19.MapMode = "FlatFace"
add_polygon(sketch19, [(30, 9.9), (35, 9.9), (35, 4.9), (30, 4.9)])
sketch19.addConstraint([
    Sketcher.Constraint("Horizontal", 0),
    Sketcher.Constraint("Vertical", 1),
    Sketcher.Constraint("Horizontal", 2),
    Sketcher.Constraint("Vertical", 3),
    Sketcher.Constraint("Equal", 2, 1),
    Sketcher.Constraint("DistanceX", 0, 1, 0, 2, 5.0),
    Sketcher.Constraint("DistanceX", -1, 1, 0, 2, 35.027331),
    Sketcher.Constraint("DistanceY", -1, 1, 0, 2, 9.902595),
])
sketch19.setExpression("Constraints[9]", "Params.sketch19_width")
pocket18 = body.newObject("PartDesign::Pocket", "Pocket017")
pocket18.Profile = sketch19
pocket18.setExpression("Length", "Params.pocket18_length")
pocket18.Reversed = True

sketch20 = body.newObject("Sketcher::SketchObject", "Sketch019")
sketch20.AttachmentSupport = (doc.getObject("XY_Plane"), [""])
sketch20.MapMode = "FlatFace"
add_polygon(sketch20, [(20, 10), (25, 10), (25, 5), (20, 5)])
sketch20.addConstraint([
    Sketcher.Constraint("Horizontal", 0),
    Sketcher.Constraint("Vertical", 1),
    Sketcher.Constraint("Horizontal", 2),
    Sketcher.Constraint("Vertical", 3),
    Sketcher.Constraint("Equal", 2, 1),
    Sketcher.Constraint("DistanceX", 0, 1, 0, 2, 5.0),
    Sketcher.Constraint("DistanceX", -1, 1, 0, 2, 25.001601),
    Sketcher.Constraint("DistanceY", -1, 1, 0, 2, 9.907826),
])
sketch20.setExpression("Constraints[9]", "Params.sketch20_width")
pocket19 = body.newObject("PartDesign::Pocket", "Pocket018")
pocket19.Profile = sketch20
pocket19.setExpression("Length", "Params.pocket19_length")
pocket19.Reversed = True

sketch21 = body.newObject("Sketcher::SketchObject", "Sketch020")
sketch21.AttachmentSupport = (doc.getObject("XY_Plane"), [""])
sketch21.MapMode = "FlatFace"
add_polygon(sketch21, [(10, 10), (15, 10), (15, 5), (10, 5)])
sketch21.addConstraint([
    Sketcher.Constraint("Horizontal", 0),
    Sketcher.Constraint("Vertical", 1),
    Sketcher.Constraint("Horizontal", 2),
    Sketcher.Constraint("Vertical", 3),
    Sketcher.Constraint("Equal", 2, 1),
    Sketcher.Constraint("DistanceX", 0, 1, 0, 2, 5.0),
    Sketcher.Constraint("DistanceX", -1, 1, 0, 2, 14.975871),
    Sketcher.Constraint("DistanceY", -1, 1, 0, 2, 9.913057),
])
sketch21.setExpression("Constraints[9]", "Params.sketch21_width")
pocket20 = body.newObject("PartDesign::Pocket", "Pocket019")
pocket20.Profile = sketch21
pocket20.setExpression("Length", "Params.pocket20_length")
pocket20.Reversed = True

sketch22 = body.newObject("Sketcher::SketchObject", "Sketch021")
sketch22.AttachmentSupport = (doc.getObject("XY_Plane"), [""])
sketch22.MapMode = "FlatFace"
add_polygon(sketch22, [(50.1, 9.9), (55.1, 9.9), (55.1, 4.9), (50.1, 4.9)])
sketch22.addConstraint([
    Sketcher.Constraint("Horizontal", 0),
    Sketcher.Constraint("Vertical", 1),
    Sketcher.Constraint("Horizontal", 2),
    Sketcher.Constraint("Vertical", 3),
    Sketcher.Constraint("Equal", 2, 1),
    Sketcher.Constraint("DistanceX", 0, 1, 0, 2, 5.0),
    Sketcher.Constraint("DistanceX", -1, 1, 0, 2, 55.078791),
    Sketcher.Constraint("DistanceY", -1, 1, 0, 2, 9.892133),
])
sketch22.setExpression("Constraints[9]", "Params.sketch22_width")
pocket21 = body.newObject("PartDesign::Pocket", "Pocket020")
pocket21.Profile = sketch22
pocket21.setExpression("Length", "Params.pocket21_length")
pocket21.Reversed = True

sketch23 = body.newObject("Sketcher::SketchObject", "Sketch022")
sketch23.AttachmentSupport = (doc.getObject("XY_Plane"), [""])
sketch23.MapMode = "FlatFace"
add_polygon(sketch23, [(0, 25.4), (115, 25.4), (115, 0), (0, 0)])
add_polygon(sketch23, [(105.2, 14.9), (105.2, 19.9), (100.2, 19.9), (100.2, 14.9)])
add_polygon(sketch23, [(95.2, 14.9), (95.2, 19.9), (90.2, 19.9), (90.2, 14.9)])
add_polygon(sketch23, [(85.2, 14.9), (85.2, 19.9), (80.2, 19.9), (80.2, 14.9)])
add_polygon(sketch23, [(75.1, 14.9), (75.1, 19.9), (70.1, 19.9), (70.1, 14.9)])
add_polygon(sketch23, [(65.1, 14.9), (65.1, 19.9), (60.1, 19.9), (60.1, 14.9)])
add_polygon(sketch23, [(105.2, 4.9), (105.2, 9.9), (100.2, 9.9), (100.2, 4.9)])
add_polygon(sketch23, [(95.2, 4.9), (95.2, 9.9), (90.2, 9.9), (90.2, 4.9)])
add_polygon(sketch23, [(85.2, 4.9), (85.2, 9.9), (80.2, 9.9), (80.2, 4.9)])
add_polygon(sketch23, [(75.1, 4.9), (75.1, 9.9), (70.1, 9.9), (70.1, 4.9)])
add_polygon(sketch23, [(65.1, 4.9), (65.1, 9.9), (60.1, 9.9), (60.1, 4.9)])
add_polygon(sketch23, [(55.1, 14.9), (55.1, 19.9), (50.1, 19.9), (50.1, 14.9)])
add_polygon(sketch23, [(45.1, 14.9), (45.1, 19.9), (40.1, 19.9), (40.1, 14.9)])
add_polygon(sketch23, [(35, 14.9), (35, 19.9), (30, 19.9), (30, 14.9)])
add_polygon(sketch23, [(25, 14.9), (25, 19.9), (20, 19.9), (20, 14.9)])
add_polygon(sketch23, [(15, 14.9), (15, 19.9), (10, 19.9), (10, 14.9)])
add_polygon(sketch23, [(55.1, 4.9), (55.1, 9.9), (50.1, 9.9), (50.1, 4.9)])
add_polygon(sketch23, [(45.1, 4.9), (45.1, 9.9), (40.1, 9.9), (40.1, 4.9)])
add_polygon(sketch23, [(35, 4.9), (35, 9.9), (30, 9.9), (30, 4.9)])
add_polygon(sketch23, [(25, 4.9), (25, 9.9), (20, 9.9), (20, 4.9)])
add_polygon(sketch23, [(15, 4.9), (15, 9.9), (10, 9.9), (10, 4.9)])
sketch23.addConstraint([
    Sketcher.Constraint("Horizontal", 0),
    Sketcher.Constraint("Vertical", 1),
    Sketcher.Constraint("Horizontal", 2),
    Sketcher.Constraint("Vertical", 3),
    Sketcher.Constraint("Vertical", 4),
    Sketcher.Constraint("Horizontal", 5),
    Sketcher.Constraint("Vertical", 6),
    Sketcher.Constraint("Horizontal", 7),
    Sketcher.Constraint("Vertical", 8),
    Sketcher.Constraint("Horizontal", 9),
    Sketcher.Constraint("Vertical", 10),
    Sketcher.Constraint("Horizontal", 11),
    Sketcher.Constraint("Vertical", 12),
    Sketcher.Constraint("Horizontal", 13),
    Sketcher.Constraint("Vertical", 14),
    Sketcher.Constraint("Horizontal", 15),
    Sketcher.Constraint("Vertical", 16),
    Sketcher.Constraint("Horizontal", 17),
    Sketcher.Constraint("Vertical", 18),
    Sketcher.Constraint("Horizontal", 19),
    Sketcher.Constraint("Vertical", 20),
    Sketcher.Constraint("Horizontal", 21),
    Sketcher.Constraint("Vertical", 22),
    Sketcher.Constraint("Horizontal", 23),
    Sketcher.Constraint("Vertical", 24),
    Sketcher.Constraint("Horizontal", 25),
    Sketcher.Constraint("Vertical", 26),
    Sketcher.Constraint("Horizontal", 27),
    Sketcher.Constraint("Vertical", 28),
    Sketcher.Constraint("Horizontal", 29),
    Sketcher.Constraint("Vertical", 30),
    Sketcher.Constraint("Horizontal", 31),
    Sketcher.Constraint("Vertical", 32),
    Sketcher.Constraint("Horizontal", 33),
    Sketcher.Constraint("Vertical", 34),
    Sketcher.Constraint("Horizontal", 35),
    Sketcher.Constraint("Vertical", 36),
    Sketcher.Constraint("Horizontal", 37),
    Sketcher.Constraint("Vertical", 38),
    Sketcher.Constraint("Horizontal", 39),
    Sketcher.Constraint("Vertical", 40),
    Sketcher.Constraint("Horizontal", 41),
    Sketcher.Constraint("Vertical", 42),
    Sketcher.Constraint("Horizontal", 43),
    Sketcher.Constraint("Vertical", 44),
    Sketcher.Constraint("Horizontal", 45),
    Sketcher.Constraint("Vertical", 46),
    Sketcher.Constraint("Horizontal", 47),
    Sketcher.Constraint("Vertical", 48),
    Sketcher.Constraint("Horizontal", 49),
    Sketcher.Constraint("Vertical", 50),
    Sketcher.Constraint("Horizontal", 51),
    Sketcher.Constraint("Vertical", 52),
    Sketcher.Constraint("Horizontal", 53),
    Sketcher.Constraint("Vertical", 54),
    Sketcher.Constraint("Horizontal", 55),
    Sketcher.Constraint("Vertical", 56),
    Sketcher.Constraint("Horizontal", 57),
    Sketcher.Constraint("Vertical", 58),
    Sketcher.Constraint("Horizontal", 59),
    Sketcher.Constraint("Vertical", 60),
    Sketcher.Constraint("Horizontal", 61),
    Sketcher.Constraint("Vertical", 62),
    Sketcher.Constraint("Horizontal", 63),
    Sketcher.Constraint("Vertical", 64),
    Sketcher.Constraint("Horizontal", 65),
    Sketcher.Constraint("Vertical", 66),
    Sketcher.Constraint("Horizontal", 67),
    Sketcher.Constraint("Vertical", 68),
    Sketcher.Constraint("Horizontal", 69),
    Sketcher.Constraint("Vertical", 70),
    Sketcher.Constraint("Horizontal", 71),
    Sketcher.Constraint("Vertical", 72),
    Sketcher.Constraint("Horizontal", 73),
    Sketcher.Constraint("Vertical", 74),
    Sketcher.Constraint("Horizontal", 75),
    Sketcher.Constraint("Vertical", 76),
    Sketcher.Constraint("Horizontal", 77),
    Sketcher.Constraint("Vertical", 78),
    Sketcher.Constraint("Horizontal", 79),
    Sketcher.Constraint("Vertical", 80),
    Sketcher.Constraint("Horizontal", 81),
    Sketcher.Constraint("Vertical", 82),
    Sketcher.Constraint("Horizontal", 83),
    Sketcher.Constraint("Coincident", 2, 2, -1, 1),
    Sketcher.Constraint("Equal", 7, 9),
    Sketcher.Constraint("Equal", 11, 13),
    Sketcher.Constraint("Equal", 15, 17),
    Sketcher.Constraint("Equal", 19, 21),
    Sketcher.Constraint("Equal", 23, 25),
    Sketcher.Constraint("Equal", 27, 29),
    Sketcher.Constraint("Equal", 31, 33),
    Sketcher.Constraint("Equal", 35, 37),
    Sketcher.Constraint("Equal", 39, 41),
    Sketcher.Constraint("Equal", 43, 45),
    Sketcher.Constraint("Equal", 47, 49),
    Sketcher.Constraint("Equal", 51, 53),
    Sketcher.Constraint("Equal", 55, 57),
    Sketcher.Constraint("Equal", 59, 61),
    Sketcher.Constraint("Equal", 63, 65),
    Sketcher.Constraint("Equal", 67, 69),
    Sketcher.Constraint("Equal", 71, 73),
    Sketcher.Constraint("Equal", 75, 77),
    Sketcher.Constraint("Equal", 79, 81),
    Sketcher.Constraint("Equal", 83, 4),
    Sketcher.Constraint("Equal", 6, 8),
    Sketcher.Constraint("Equal", 10, 12),
    Sketcher.Constraint("Equal", 14, 16),
    Sketcher.Constraint("Equal", 18, 20),
    Sketcher.Constraint("Equal", 22, 24),
    Sketcher.Constraint("Equal", 26, 28),
    Sketcher.Constraint("Equal", 30, 32),
    Sketcher.Constraint("Equal", 34, 36),
    Sketcher.Constraint("Equal", 38, 40),
    Sketcher.Constraint("Equal", 42, 44),
    Sketcher.Constraint("Equal", 46, 48),
    Sketcher.Constraint("Equal", 50, 52),
    Sketcher.Constraint("Equal", 54, 56),
    Sketcher.Constraint("Equal", 58, 60),
    Sketcher.Constraint("Equal", 62, 64),
    Sketcher.Constraint("Equal", 66, 68),
    Sketcher.Constraint("Equal", 70, 72),
    Sketcher.Constraint("Equal", 74, 76),
    Sketcher.Constraint("Equal", 78, 80),
    Sketcher.Constraint("DistanceX", 0, 1, 0, 2, 115.0),
    Sketcher.Constraint("DistanceX", 5, 2, 5, 1, 5.0),
    Sketcher.Constraint("DistanceY", 1, 2, 1, 1, 25.4),
    Sketcher.Constraint("DistanceY", -1, 1, 16, 2, 19.907401),
    Sketcher.Constraint("DistanceY", -1, 1, 40, 2, 9.886902),
    Sketcher.Constraint("DistanceX", -1, 1, 76, 2, 25.001601),
    Sketcher.Constraint("DistanceX", -1, 1, 4, 2, 105.212672),
    Sketcher.Constraint("DistanceY", -1, 1, 4, 2, 19.891708),
    Sketcher.Constraint("DistanceX", -1, 1, 8, 2, 95.186942),
    Sketcher.Constraint("DistanceY", -1, 1, 8, 2, 19.896939),
    Sketcher.Constraint("DistanceY", -1, 1, 12, 2, 19.90217),
    Sketcher.Constraint("DistanceX", -1, 1, 16, 2, 75.135482),
    Sketcher.Constraint("DistanceX", -1, 1, 20, 2, 65.109752),
    Sketcher.Constraint("DistanceY", -1, 1, 20, 2, 19.912632),
    Sketcher.Constraint("DistanceX", -1, 1, 24, 2, 105.207441),
    Sketcher.Constraint("DistanceX", -1, 1, 28, 2, 95.181711),
    Sketcher.Constraint("DistanceY", -1, 1, 28, 2, 9.871209),
    Sketcher.Constraint("DistanceX", -1, 1, 32, 2, 85.155981),
    Sketcher.Constraint("DistanceY", -1, 1, 32, 2, 9.87644),
    Sketcher.Constraint("DistanceX", -1, 1, 36, 2, 75.130251),
    Sketcher.Constraint("DistanceY", -1, 1, 36, 2, 9.881671),
    Sketcher.Constraint("DistanceX", -1, 1, 40, 2, 65.104521),
    Sketcher.Constraint("DistanceX", -1, 1, 44, 2, 55.084022),
    Sketcher.Constraint("DistanceX", -1, 1, 53, 2, 30.032562),
    Sketcher.Constraint("DistanceX", -1, 1, 56, 2, 25.006832),
    Sketcher.Constraint("DistanceX", -1, 1, 64, 2, 55.078791),
    Sketcher.Constraint("DistanceX", -1, 1, 68, 2, 45.053061),
    Sketcher.Constraint("DistanceX", -1, 1, 72, 2, 35.027331),
    Sketcher.Constraint("DistanceX", -1, 1, 80, 2, 14.975871),
    Sketcher.Constraint("DistanceX", -1, 1, 12, 2, 85.161212),
    Sketcher.Constraint("DistanceY", -1, 1, 24, 2, 9.865978),
    Sketcher.Constraint("DistanceY", -1, 1, 44, 2, 19.917863),
    Sketcher.Constraint("DistanceX", -1, 1, 48, 2, 45.058292),
    Sketcher.Constraint("DistanceY", -1, 1, 48, 2, 19.923094),
    Sketcher.Constraint("DistanceY", -1, 1, 52, 2, 19.928325),
    Sketcher.Constraint("DistanceY", -1, 1, 56, 2, 19.933556),
    Sketcher.Constraint("DistanceX", -1, 1, 60, 2, 14.981102),
    Sketcher.Constraint("DistanceY", -1, 1, 60, 2, 19.938787),
    Sketcher.Constraint("DistanceY", -1, 1, 64, 2, 9.892133),
    Sketcher.Constraint("DistanceY", -1, 1, 68, 2, 9.897364),
    Sketcher.Constraint("DistanceY", -1, 1, 72, 2, 9.902595),
    Sketcher.Constraint("DistanceY", -1, 1, 76, 2, 9.907826),
    Sketcher.Constraint("DistanceY", -1, 1, 80, 2, 9.913057),
])
sketch23.setExpression("Constraints[208]", "Params.sketch23_width")
sketch23.setExpression("Constraints[209]", "Params.sketch23_width2")
sketch23.setExpression("Constraints[210]", "Params.sketch23_height")
pad2 = body.newObject("PartDesign::Pad", "Pad001")
pad2.Profile = sketch23
pad2.setExpression("Length", "Params.pad2_length")
pad2.Reversed = True

doc.recompute()
